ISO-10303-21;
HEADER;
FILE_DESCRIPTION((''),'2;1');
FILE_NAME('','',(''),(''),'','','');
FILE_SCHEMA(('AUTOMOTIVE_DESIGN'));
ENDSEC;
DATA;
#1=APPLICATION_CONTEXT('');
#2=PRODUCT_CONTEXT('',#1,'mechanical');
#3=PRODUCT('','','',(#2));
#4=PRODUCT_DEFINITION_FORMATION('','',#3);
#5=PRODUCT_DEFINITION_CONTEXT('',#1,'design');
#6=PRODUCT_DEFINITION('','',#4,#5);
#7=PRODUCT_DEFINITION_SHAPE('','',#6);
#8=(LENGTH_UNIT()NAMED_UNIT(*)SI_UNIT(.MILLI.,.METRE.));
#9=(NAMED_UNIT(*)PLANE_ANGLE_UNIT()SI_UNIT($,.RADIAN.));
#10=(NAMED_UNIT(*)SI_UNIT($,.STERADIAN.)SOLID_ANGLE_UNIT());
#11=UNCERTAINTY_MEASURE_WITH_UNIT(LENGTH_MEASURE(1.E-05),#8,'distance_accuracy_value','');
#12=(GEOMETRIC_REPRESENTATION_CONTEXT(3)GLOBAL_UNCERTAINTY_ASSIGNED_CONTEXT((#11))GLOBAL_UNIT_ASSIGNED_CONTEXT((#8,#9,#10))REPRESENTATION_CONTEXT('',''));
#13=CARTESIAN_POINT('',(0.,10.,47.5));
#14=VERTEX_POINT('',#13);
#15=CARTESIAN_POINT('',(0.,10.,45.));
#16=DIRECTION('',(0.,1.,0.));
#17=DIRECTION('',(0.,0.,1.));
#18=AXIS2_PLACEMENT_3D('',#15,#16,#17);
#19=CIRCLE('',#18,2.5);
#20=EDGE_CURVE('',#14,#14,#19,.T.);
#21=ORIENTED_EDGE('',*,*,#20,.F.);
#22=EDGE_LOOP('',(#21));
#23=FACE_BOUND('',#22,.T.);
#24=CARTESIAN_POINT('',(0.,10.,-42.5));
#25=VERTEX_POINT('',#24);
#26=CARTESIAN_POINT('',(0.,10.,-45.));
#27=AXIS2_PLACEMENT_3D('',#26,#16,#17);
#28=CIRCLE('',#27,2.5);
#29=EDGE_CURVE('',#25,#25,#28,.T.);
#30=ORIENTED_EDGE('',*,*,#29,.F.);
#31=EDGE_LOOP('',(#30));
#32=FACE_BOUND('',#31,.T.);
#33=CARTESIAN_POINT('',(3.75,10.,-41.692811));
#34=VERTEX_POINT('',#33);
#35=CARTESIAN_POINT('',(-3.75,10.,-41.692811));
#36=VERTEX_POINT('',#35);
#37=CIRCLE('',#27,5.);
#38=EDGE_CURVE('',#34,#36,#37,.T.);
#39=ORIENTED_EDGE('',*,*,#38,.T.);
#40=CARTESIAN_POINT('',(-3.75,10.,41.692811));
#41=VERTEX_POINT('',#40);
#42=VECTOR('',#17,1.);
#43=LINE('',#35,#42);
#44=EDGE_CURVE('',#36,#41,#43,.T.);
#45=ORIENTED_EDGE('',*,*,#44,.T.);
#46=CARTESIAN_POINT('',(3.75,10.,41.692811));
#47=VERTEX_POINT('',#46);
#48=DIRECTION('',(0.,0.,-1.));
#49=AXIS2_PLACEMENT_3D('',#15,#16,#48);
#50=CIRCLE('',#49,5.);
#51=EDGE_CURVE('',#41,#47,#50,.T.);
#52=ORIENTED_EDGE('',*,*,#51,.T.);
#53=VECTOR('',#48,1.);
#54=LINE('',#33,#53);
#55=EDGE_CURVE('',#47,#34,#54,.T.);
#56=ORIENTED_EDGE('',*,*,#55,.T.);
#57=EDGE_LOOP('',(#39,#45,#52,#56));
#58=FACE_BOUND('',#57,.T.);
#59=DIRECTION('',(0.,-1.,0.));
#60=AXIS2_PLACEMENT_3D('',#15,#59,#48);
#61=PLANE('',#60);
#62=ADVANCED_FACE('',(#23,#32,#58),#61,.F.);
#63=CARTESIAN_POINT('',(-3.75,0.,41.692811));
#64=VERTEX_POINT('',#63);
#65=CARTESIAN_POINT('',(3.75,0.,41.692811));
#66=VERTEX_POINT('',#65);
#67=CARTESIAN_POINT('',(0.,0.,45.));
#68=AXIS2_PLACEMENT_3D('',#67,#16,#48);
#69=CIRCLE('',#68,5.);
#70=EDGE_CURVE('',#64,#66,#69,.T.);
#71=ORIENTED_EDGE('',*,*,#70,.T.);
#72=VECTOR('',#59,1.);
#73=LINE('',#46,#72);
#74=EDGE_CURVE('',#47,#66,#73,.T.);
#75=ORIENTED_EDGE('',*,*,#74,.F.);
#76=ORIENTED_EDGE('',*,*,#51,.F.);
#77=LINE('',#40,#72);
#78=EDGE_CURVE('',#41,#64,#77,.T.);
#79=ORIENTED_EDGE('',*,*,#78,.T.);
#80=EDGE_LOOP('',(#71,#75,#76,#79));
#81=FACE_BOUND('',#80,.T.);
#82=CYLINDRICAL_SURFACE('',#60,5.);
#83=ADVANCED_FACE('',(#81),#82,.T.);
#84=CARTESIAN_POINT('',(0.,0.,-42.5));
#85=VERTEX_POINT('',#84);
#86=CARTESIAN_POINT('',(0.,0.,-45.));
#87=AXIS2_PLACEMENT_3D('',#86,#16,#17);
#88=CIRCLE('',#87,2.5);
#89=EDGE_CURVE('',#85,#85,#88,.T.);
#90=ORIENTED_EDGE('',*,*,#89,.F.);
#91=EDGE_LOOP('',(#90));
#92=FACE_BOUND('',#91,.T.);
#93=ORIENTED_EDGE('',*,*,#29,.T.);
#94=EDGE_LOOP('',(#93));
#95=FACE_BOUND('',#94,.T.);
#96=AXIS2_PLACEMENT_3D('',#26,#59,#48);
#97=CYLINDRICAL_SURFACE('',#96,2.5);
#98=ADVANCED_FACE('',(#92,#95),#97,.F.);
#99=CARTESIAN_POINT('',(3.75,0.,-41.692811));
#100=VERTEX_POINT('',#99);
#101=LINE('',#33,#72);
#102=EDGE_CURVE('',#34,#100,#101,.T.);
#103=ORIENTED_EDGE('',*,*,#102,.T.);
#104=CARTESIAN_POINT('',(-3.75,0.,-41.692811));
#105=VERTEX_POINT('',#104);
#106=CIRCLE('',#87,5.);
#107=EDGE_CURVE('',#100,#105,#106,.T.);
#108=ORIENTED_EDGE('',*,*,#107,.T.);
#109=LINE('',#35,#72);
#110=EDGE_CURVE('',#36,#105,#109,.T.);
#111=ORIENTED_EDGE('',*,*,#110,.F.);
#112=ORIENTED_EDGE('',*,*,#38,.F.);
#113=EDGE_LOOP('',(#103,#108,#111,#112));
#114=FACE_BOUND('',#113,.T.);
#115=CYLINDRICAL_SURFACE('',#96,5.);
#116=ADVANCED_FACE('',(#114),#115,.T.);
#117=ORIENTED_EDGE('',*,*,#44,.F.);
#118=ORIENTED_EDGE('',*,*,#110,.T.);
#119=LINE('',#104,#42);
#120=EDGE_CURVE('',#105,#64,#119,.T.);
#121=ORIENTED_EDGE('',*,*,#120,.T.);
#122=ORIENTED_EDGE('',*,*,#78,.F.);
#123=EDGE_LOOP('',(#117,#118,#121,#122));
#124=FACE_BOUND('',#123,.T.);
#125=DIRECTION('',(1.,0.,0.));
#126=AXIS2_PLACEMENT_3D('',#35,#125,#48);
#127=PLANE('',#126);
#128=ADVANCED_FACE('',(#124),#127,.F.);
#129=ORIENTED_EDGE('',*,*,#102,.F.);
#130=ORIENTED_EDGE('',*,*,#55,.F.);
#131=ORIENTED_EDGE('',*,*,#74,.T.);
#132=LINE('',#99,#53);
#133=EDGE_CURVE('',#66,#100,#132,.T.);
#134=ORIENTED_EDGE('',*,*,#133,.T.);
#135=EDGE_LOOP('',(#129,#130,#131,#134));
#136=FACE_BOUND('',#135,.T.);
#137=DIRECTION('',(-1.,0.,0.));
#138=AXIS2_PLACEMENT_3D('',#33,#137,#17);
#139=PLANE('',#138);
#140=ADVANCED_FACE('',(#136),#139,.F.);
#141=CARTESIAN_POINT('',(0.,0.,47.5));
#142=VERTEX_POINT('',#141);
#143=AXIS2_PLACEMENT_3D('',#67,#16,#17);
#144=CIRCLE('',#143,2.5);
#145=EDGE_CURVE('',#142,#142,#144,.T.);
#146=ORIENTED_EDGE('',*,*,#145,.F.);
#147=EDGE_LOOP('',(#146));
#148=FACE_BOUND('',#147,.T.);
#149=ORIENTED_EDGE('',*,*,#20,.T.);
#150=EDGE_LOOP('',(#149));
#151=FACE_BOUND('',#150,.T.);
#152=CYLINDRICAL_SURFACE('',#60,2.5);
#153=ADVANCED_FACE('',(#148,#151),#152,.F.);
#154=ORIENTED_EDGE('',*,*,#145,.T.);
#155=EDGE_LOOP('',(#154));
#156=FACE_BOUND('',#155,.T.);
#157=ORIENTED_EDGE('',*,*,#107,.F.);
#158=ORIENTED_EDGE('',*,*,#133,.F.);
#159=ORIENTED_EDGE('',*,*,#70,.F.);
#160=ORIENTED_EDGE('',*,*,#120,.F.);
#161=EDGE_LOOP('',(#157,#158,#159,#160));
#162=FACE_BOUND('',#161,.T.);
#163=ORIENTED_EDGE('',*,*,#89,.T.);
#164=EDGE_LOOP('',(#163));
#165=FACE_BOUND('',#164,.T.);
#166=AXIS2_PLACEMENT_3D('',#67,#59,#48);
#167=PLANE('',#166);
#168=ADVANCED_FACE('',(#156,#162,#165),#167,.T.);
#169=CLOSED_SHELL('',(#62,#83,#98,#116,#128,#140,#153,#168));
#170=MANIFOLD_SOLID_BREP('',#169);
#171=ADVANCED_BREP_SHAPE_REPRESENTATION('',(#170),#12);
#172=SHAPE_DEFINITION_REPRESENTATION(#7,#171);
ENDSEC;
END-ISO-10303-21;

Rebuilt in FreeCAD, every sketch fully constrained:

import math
import FreeCAD as App
import Part
import Sketcher
from FreeCAD import Vector

doc = App.newDocument("Part")
params = doc.addObject("Spreadsheet::Sheet", "Params")
for row, (alias, value) in enumerate([
    ("sketch1_diameter", "5 mm"),
    ("sketch1_radius", "5 mm"),
    ("pad1_length", "10 mm"),
], start=1):
    params.set(f"A{row}", alias)
    params.set(f"B{row}", "=" + value)
    params.setAlias(f"B{row}", alias)

body = doc.addObject("PartDesign::Body", "Body")

sketch1 = body.newObject("Sketcher::SketchObject", "Sketch")
sketch1.AttachmentSupport = (doc.getObject("XZ_Plane"), [""])
sketch1.MapMode = "FlatFace"
sketch1.addGeometry(Part.LineSegment(Vector(-3.8, -41.7, 0), Vector(-3.8, 41.7, 0)), False)
sketch1.addGeometry(Part.ArcOfCircle(Part.Circle(Vector(0, 45, 0), Vector(0, 0, 1), 5), math.radians(-41), math.radians(221)), False)
sketch1.addGeometry(Part.LineSegment(Vector(3.8, 41.7, 0), Vector(3.8, -41.7, 0)), False)
sketch1.addGeometry(Part.ArcOfCircle(Part.Circle(Vector(0, -45, 0), Vector(0, 0, 1), 5), math.radians(139), math.radians(401)), False)
sketch1.addGeometry(Part.Circle(Vector(0, 45, 0), Vector(0, 0, 1), 2.5), False)
sketch1.addGeometry(Part.Circle(Vector(0, -45, 0), Vector(0, 0, 1), 2.5), False)
sketch1.addConstraint(Sketcher.Constraint("Coincident", 0, 2, 1, 2))
sketch1.addConstraint(Sketcher.Constraint("Coincident", 1, 1, 2, 1))
sketch1.addConstraint(Sketcher.Constraint("Coincident", 2, 2, 3, 2))
sketch1.addConstraint(Sketcher.Constraint("Coincident", 3, 1, 0, 1))
sketch1.addConstraint(Sketcher.Constraint("Vertical", 0))
sketch1.addConstraint(Sketcher.Constraint("Vertical", 2))
sketch1.addConstraint(Sketcher.Constraint("Coincident", 4, 3, 1, 3))
sketch1.addConstraint(Sketcher.Constraint("Coincident", 5, 3, 3, 3))
sketch1.addConstraint(Sketcher.Constraint("Equal", 1, 3))
sketch1.addConstraint(Sketcher.Constraint("Equal", 4, 5))
sketch1.addConstraint(Sketcher.Constraint("Symmetric", 1, 3, 3, 3, -1, 1))
sketch1.addConstraint(Sketcher.Constraint("Symmetric", 0, 2, 1, 1, -2))
sketch1.addConstraint(Sketcher.Constraint("Diameter", 4, 5.0))
sketch1.addConstraint(Sketcher.Constraint("Radius", 1, 5.0))
sketch1.addConstraint(Sketcher.Constraint("DistanceY", -1, 1, 1, 3, 45.0))
sketch1.addConstraint(Sketcher.Constraint("DistanceX", 0, 2, 1, 1, 7.5))
sketch1.setExpression("Constraints[12]", "Params.sketch1_diameter")
sketch1.setExpression("Constraints[13]", "Params.sketch1_radius")
pad1 = body.newObject("PartDesign::Pad", "Pad")
pad1.Profile = sketch1
pad1.setExpression("Length", "Params.pad1_length")
pad1.Reversed = True

doc.recompute()
